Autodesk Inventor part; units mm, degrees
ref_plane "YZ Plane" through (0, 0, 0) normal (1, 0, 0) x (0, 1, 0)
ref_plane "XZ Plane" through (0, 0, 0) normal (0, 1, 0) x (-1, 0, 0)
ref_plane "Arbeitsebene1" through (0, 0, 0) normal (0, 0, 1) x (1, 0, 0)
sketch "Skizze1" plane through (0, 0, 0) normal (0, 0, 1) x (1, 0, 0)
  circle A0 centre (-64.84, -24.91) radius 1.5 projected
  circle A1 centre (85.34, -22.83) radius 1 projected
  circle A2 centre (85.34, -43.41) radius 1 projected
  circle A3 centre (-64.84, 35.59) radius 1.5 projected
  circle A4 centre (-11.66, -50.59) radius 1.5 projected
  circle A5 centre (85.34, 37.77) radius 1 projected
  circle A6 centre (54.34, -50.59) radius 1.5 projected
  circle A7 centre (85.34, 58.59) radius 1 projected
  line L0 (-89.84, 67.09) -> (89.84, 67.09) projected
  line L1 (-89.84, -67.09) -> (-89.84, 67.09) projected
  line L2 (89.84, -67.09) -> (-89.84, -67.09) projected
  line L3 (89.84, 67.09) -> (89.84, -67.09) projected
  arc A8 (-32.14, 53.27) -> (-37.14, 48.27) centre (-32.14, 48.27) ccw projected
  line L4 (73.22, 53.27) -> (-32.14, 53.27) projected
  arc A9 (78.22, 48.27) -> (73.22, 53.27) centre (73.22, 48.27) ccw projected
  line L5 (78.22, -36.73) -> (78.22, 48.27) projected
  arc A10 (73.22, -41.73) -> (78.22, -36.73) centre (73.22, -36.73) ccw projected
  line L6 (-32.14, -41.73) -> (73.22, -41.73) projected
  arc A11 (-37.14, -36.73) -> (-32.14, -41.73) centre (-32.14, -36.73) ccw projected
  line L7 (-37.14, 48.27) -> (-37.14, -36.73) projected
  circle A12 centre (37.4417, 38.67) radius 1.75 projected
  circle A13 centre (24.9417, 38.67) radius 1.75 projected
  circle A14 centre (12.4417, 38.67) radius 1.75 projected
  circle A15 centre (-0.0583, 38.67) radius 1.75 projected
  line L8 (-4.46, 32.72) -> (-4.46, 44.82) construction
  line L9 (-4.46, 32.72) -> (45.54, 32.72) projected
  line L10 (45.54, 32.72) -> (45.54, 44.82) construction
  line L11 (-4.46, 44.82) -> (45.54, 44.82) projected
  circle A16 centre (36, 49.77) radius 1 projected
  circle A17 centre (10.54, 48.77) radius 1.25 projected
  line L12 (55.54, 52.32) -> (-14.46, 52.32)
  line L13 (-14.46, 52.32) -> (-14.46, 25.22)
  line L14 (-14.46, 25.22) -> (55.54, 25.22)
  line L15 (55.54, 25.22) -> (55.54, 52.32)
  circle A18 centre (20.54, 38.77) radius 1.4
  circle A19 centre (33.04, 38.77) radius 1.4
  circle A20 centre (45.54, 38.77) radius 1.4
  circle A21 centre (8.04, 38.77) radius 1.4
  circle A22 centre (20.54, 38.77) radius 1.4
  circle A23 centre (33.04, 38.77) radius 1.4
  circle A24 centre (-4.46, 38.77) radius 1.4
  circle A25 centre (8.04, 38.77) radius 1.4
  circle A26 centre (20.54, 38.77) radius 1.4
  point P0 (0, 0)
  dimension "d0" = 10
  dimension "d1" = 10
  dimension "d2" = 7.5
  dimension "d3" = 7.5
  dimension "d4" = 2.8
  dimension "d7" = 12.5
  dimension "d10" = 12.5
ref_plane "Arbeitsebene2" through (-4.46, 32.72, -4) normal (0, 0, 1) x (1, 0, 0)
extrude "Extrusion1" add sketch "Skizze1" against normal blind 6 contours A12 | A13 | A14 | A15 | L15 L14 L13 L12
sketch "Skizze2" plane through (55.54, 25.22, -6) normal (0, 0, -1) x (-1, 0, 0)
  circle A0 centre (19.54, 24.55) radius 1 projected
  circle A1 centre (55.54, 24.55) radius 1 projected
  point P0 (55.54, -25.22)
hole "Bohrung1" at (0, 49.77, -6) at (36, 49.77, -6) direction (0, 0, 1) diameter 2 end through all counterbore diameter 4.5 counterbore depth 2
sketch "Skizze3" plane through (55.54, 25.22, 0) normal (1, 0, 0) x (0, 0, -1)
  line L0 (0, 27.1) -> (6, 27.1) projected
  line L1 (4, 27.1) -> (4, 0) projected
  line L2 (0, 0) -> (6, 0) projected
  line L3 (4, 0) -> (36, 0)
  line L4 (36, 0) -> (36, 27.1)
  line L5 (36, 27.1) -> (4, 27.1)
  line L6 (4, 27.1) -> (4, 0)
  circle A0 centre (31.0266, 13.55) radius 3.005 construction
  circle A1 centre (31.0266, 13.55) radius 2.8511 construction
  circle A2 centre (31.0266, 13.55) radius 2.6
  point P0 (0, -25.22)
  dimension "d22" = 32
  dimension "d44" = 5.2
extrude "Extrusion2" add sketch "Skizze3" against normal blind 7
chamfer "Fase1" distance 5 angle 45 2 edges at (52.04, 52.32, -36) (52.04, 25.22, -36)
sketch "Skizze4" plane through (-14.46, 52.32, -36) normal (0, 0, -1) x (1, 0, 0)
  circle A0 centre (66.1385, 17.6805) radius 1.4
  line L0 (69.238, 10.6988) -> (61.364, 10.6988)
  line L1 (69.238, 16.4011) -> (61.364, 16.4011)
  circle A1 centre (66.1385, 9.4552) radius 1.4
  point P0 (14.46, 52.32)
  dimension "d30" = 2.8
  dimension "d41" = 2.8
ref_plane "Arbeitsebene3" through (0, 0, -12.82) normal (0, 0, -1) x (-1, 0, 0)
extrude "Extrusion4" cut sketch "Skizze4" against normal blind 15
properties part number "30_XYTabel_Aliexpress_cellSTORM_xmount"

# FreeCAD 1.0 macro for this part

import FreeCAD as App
import Part
import Sketcher
from FreeCAD import Vector


def edges_at(feature, points):
    """Names of the edges that pass closest to the given points."""
    edges = feature.Shape.Edges
    near = lambda p: min(range(len(edges)), key=lambda i: edges[i].distToShape(Part.Vertex(*p))[0])
    return sorted({f"Edge{near(p) + 1}" for p in points})


def add_polygon(sketch, points):
    """Adds a closed chain of lines whose ends are joined by coincident constraints."""
    first, n = sketch.GeometryCount, len(points)
    for a, b in zip(points, points[1:] + points[:1]):
        sketch.addGeometry(Part.LineSegment(App.Vector(*a, 0), App.Vector(*b, 0)), False)
    for i in range(n):
        sketch.addConstraint(Sketcher.Constraint("Coincident", first + i, 2, first + (i + 1) % n, 1))

doc = App.newDocument("Part")
body = doc.addObject("PartDesign::Body", "Body")

# Sketch on XY plane
sketch1 = body.newObject("Sketcher::SketchObject", "Sketch")
sketch1.AttachmentSupport = (doc.getObject("XY_Plane"), [""])
sketch1.MapMode = "FlatFace"
add_polygon(sketch1, [(55.5, 25.2), (55.5, 52.3), (-14.5, 52.3), (-14.5, 25.2)])  # lines 0-3
sketch1.addGeometry(Part.Circle(Vector(-4.5, 38.8, 0), Vector(0, 0, 1), 1.4), False)  # 4
sketch1.addGeometry(Part.Circle(Vector(8, 38.8, 0), Vector(0, 0, 1), 1.4), False)  # 5
sketch1.addGeometry(Part.Circle(Vector(20.5, 38.8, 0), Vector(0, 0, 1), 1.4), False)  # 6
sketch1.addGeometry(Part.Circle(Vector(10.5, 48.8, 0), Vector(0, 0, 1), 1.2), False)  # 7
sketch1.addGeometry(Part.Circle(Vector(33, 38.8, 0), Vector(0, 0, 1), 1.4), False)  # 8
sketch1.addGeometry(Part.Circle(Vector(45.5, 38.8, 0), Vector(0, 0, 1), 1.4), False)  # 9
sketch1.addGeometry(Part.Circle(Vector(36, 49.8, 0), Vector(0, 0, 1), 1), False)  # 10
sketch1.addConstraint([
    Sketcher.Constraint("Vertical", 0),
    Sketcher.Constraint("Horizontal", 1),
    Sketcher.Constraint("Vertical", 2),
    Sketcher.Constraint("Horizontal", 3),
    Sketcher.Constraint("Equal", 4, 5),
    Sketcher.Constraint("Equal", 5, 6),
    Sketcher.Constraint("Equal", 6, 8),
    Sketcher.Constraint("Equal", 8, 9),
    Sketcher.Constraint("Horizontal", 4, 3, 5, 3),
    Sketcher.Constraint("Horizontal", 5, 3, 6, 3),
    Sketcher.Constraint("Horizontal", 6, 3, 8, 3),
    Sketcher.Constraint("Horizontal", 8, 3, 9, 3),
    Sketcher.Constraint("Diameter", 4, 2.8),
    Sketcher.Constraint("Diameter", 10, 2.0),
    Sketcher.Constraint("DistanceY", 5, 3, 7, 3, 10.0),
    Sketcher.Constraint("DistanceX", 7, 3, 6, 3, 10.0),
    Sketcher.Constraint("DistanceX", 9, 3, 0, 2, 10.0),
    Sketcher.Constraint("DistanceX", 1, 2, 4, 3, 10.0),
    Sketcher.Constraint("Diameter", 7, 2.5),
    Sketcher.Constraint("DistanceX", 4, 3, 5, 3, 12.5),
    Sketcher.Constraint("DistanceX", 5, 3, 6, 3, 12.5),
    Sketcher.Constraint("DistanceX", 6, 3, 8, 3, 12.5),
    Sketcher.Constraint("DistanceX", 8, 3, 9, 3, 12.5),
    Sketcher.Constraint("DistanceY", 0, 1, 0, 2, 27.1),
    Sketcher.Constraint("DistanceX", -1, 1, 10, 3, 36.0),
    Sketcher.Constraint("DistanceY", 8, 3, 10, 3, 11.0),
    Sketcher.Constraint("DistanceX", 4, 3, -1, 1, 4.46),
    Sketcher.Constraint("DistanceY", -1, 1, 4, 3, 38.77),
    Sketcher.Constraint("DistanceY", -1, 1, 0, 2, 52.32),
])
pad1 = body.newObject("PartDesign::Pad", "Pad")
pad1.Profile = sketch1
pad1.Length = 6
pad1.Reversed = True

# Sketch on XY plane
sketch2 = body.newObject("Sketcher::SketchObject", "Sketch001")
sketch2.AttachmentSupport = (doc.getObject("XY_Plane"), [""])
sketch2.MapMode = "FlatFace"
sketch2.AttachmentOffset = App.Placement(Vector(0, 0, -6), App.Rotation())
sketch2.addGeometry([
    Part.Circle(Vector(0, 49.8, 0), Vector(0, 0, 1), 1),
    Part.Circle(Vector(36, 49.8, 0), Vector(0, 0, 1), 1),
], False)
sketch2.addConstraint([
    Sketcher.Constraint("Equal", 0, 1),
    Sketcher.Constraint("PointOnObject", 0, 3, -2),
    Sketcher.Constraint("Horizontal", 0, 3, 1, 3),
    Sketcher.Constraint("Diameter", 0, 2.0),
    Sketcher.Constraint("DistanceX", -1, 1, 1, 3, 36.0),
    Sketcher.Constraint("DistanceY", -1, 1, 0, 3, 49.77),
])
doc.recompute()
hole = body.newObject("PartDesign::Hole", "Hole")
hole.Profile = sketch2
hole.ThreadType = "None"
hole.Diameter = 2
hole.DepthType = "ThroughAll"
hole.HoleCutType = "Counterbore"
hole.HoleCutDiameter = 4.5
hole.HoleCutDepth = 2
hole.Reversed = True

# Sketch on YZ plane
sketch3 = body.newObject("Sketcher::SketchObject", "Sketch002")
sketch3.AttachmentSupport = (doc.getObject("YZ_Plane"), [""])
sketch3.MapMode = "FlatFace"
sketch3.AttachmentOffset = App.Placement(Vector(0, 0, 55.54), App.Rotation())
add_polygon(sketch3, [(52.3, -36), (52.3, -4), (25.2, -4), (25.2, -36)])  # lines 0-3
sketch3.addGeometry(Part.Circle(Vector(38.8, -31, 0), Vector(0, 0, 1), 2.6), False)  # 4
sketch3.addConstraint([
    Sketcher.Constraint("Vertical", 0),
    Sketcher.Constraint("Horizontal", 1),
    Sketcher.Constraint("Vertical", 2),
    Sketcher.Constraint("Horizontal", 3),
    Sketcher.Constraint("Diameter", 4, 5.2),
    Sketcher.Constraint("DistanceY", 0, 1, 0, 2, 32.0),
    Sketcher.Constraint("DistanceX", 1, 2, 1, 1, 27.1),
    Sketcher.Constraint("DistanceY", 0, 2, -1, 1, 4.0),
    Sketcher.Constraint("DistanceX", -1, 1, 4, 3, 38.77),
    Sketcher.Constraint("DistanceX", -1, 1, 0, 2, 52.32),
    Sketcher.Constraint("DistanceY", 4, 3, -1, 1, 31.0266),
])
pad2 = body.newObject("PartDesign::Pad", "Pad001")
pad2.Profile = sketch3
pad2.Length = 7
pad2.Reversed = True
doc.recompute()

chamfer = body.newObject("PartDesign::Chamfer", "Chamfer")
chamfer.Base = (pad2, edges_at(pad2, [(52.04, 52.32, -36), (52.04, 25.22, -36)]))
chamfer.Size = 5

# Sketch on XY plane
sketch4 = body.newObject("Sketcher::SketchObject", "Sketch003")
sketch4.AttachmentSupport = (doc.getObject("XY_Plane"), [""])
sketch4.MapMode = "FlatFace"
sketch4.AttachmentOffset = App.Placement(Vector(0, 0, -36), App.Rotation())
sketch4.addGeometry([
    Part.Circle(Vector(51.7, 34.6, 0), Vector(0, 0, 1), 1.4),
    Part.Circle(Vector(51.7, 42.9, 0), Vector(0, 0, 1), 1.4),
], False)
sketch4.addConstraint([
    Sketcher.Constraint("Equal", 0, 1),
    Sketcher.Constraint("Vertical", 0, 3, 1, 3),
    Sketcher.Constraint("Diameter", 0, 2.8),
    Sketcher.Constraint("DistanceX", -1, 1, 0, 3, 51.6785),
    Sketcher.Constraint("DistanceY", -1, 1, 0, 3, 34.6395),
    Sketcher.Constraint("DistanceY", -1, 1, 1, 3, 42.8648),
])
pocket1 = body.newObject("PartDesign::Pocket", "Pocket")
pocket1.Profile = sketch4
pocket1.Length = 15
pocket1.Reversed = True

doc.recompute()
